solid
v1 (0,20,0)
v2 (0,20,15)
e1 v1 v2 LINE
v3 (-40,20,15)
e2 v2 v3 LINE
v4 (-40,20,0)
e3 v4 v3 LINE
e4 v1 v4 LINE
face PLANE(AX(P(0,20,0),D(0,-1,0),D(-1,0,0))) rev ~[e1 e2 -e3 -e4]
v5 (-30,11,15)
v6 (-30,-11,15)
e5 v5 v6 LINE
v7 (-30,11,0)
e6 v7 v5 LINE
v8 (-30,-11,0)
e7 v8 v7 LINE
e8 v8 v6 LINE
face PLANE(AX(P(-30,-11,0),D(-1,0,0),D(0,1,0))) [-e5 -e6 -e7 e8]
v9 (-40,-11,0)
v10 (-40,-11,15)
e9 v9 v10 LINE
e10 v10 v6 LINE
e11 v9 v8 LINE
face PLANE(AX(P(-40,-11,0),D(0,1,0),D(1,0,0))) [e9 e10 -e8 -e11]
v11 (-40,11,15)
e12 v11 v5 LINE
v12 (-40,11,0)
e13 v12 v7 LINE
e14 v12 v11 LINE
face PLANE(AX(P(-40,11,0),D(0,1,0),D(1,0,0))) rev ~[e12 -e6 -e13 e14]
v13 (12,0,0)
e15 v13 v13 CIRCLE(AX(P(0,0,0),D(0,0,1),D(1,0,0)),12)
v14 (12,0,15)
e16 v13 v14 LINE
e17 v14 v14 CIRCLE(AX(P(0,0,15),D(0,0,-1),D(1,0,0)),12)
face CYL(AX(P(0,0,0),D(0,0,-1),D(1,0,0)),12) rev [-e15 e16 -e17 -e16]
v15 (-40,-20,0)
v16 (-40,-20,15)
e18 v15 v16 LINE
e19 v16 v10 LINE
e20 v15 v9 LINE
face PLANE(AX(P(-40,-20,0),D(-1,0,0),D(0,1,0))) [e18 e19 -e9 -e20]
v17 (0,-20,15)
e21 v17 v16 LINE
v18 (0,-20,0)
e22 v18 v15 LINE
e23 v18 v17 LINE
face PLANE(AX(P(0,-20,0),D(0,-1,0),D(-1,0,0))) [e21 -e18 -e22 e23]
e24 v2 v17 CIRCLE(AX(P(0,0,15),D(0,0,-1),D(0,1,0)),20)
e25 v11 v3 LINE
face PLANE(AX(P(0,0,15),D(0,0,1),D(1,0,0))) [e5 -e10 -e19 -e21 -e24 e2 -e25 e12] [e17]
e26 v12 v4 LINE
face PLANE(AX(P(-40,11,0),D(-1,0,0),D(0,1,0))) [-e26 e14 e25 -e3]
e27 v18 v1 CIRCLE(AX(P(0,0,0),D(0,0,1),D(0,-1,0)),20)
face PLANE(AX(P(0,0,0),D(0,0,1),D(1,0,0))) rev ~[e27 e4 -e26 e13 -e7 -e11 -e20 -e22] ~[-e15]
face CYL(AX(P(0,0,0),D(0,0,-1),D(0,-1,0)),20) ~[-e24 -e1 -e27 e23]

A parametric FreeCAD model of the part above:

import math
import FreeCAD as App
import Part
import Sketcher
Q = App.Units.Quantity

doc = App.newDocument("Part")
body = doc.addObject("PartDesign::Body", "Body")

# Sketch on XY plane
sketch1 = body.newObject("Sketcher::SketchObject", "Sketch")
sketch1.AttachmentSupport = (doc.getObject("XY_Plane"), [""])
sketch1.MapMode = "FlatFace"
sketch1.addGeometry(Part.ArcOfCircle(Part.Circle(App.Vector(0, 0, 0), App.Vector(0, 0, 1), 20), math.radians(-90), math.radians(90)), False)
sketch1.addGeometry(Part.LineSegment(App.Vector(0, 20, 0), App.Vector(-40, 20, 0)), False)
sketch1.addGeometry(Part.LineSegment(App.Vector(-40, 20, 0), App.Vector(-40, 11, 0)), False)
sketch1.addGeometry(Part.LineSegment(App.Vector(-40, 11, 0), App.Vector(-30, 11, 0)), False)
sketch1.addGeometry(Part.LineSegment(App.Vector(-30, 11, 0), App.Vector(-30, -11, 0)), False)
sketch1.addGeometry(Part.LineSegment(App.Vector(-30, -11, 0), App.Vector(-40, -11, 0)), False)
sketch1.addGeometry(Part.LineSegment(App.Vector(-40, -11, 0), App.Vector(-40, -20, 0)), False)
sketch1.addGeometry(Part.LineSegment(App.Vector(-40, -20, 0), App.Vector(0, -20, 0)), False)
sketch1.addGeometry(Part.Circle(App.Vector(0, 0, 0), App.Vector(0, 0, 1), 12), False)
sketch1.addConstraint(Sketcher.Constraint("Tangent", 0, 2, 1, 1))
sketch1.addConstraint(Sketcher.Constraint("Coincident", 1, 2, 2, 1))
sketch1.addConstraint(Sketcher.Constraint("Coincident", 2, 2, 3, 1))
sketch1.addConstraint(Sketcher.Constraint("Coincident", 3, 2, 4, 1))
sketch1.addConstraint(Sketcher.Constraint("Coincident", 4, 2, 5, 1))
sketch1.addConstraint(Sketcher.Constraint("Coincident", 5, 2, 6, 1))
sketch1.addConstraint(Sketcher.Constraint("Coincident", 6, 2, 7, 1))
sketch1.addConstraint(Sketcher.Constraint("Tangent", 7, 2, 0, 1))
sketch1.addConstraint(Sketcher.Constraint("Horizontal", 1))
sketch1.addConstraint(Sketcher.Constraint("Vertical", 2))
sketch1.addConstraint(Sketcher.Constraint("Horizontal", 3))
sketch1.addConstraint(Sketcher.Constraint("Vertical", 4))
sketch1.addConstraint(Sketcher.Constraint("Horizontal", 5))
sketch1.addConstraint(Sketcher.Constraint("Vertical", 6))
sketch1.addConstraint(Sketcher.Constraint("Horizontal", 7))
sketch1.addConstraint(Sketcher.Constraint("Coincident", 0, 3, -1, 1))
sketch1.addConstraint(Sketcher.Constraint("Coincident", 8, 3, -1, 1))
sketch1.addConstraint(Sketcher.Constraint("Symmetric", 2, 2, 5, 2, -1))
sketch1.addConstraint(Sketcher.Constraint("Diameter", 8, Q("24 mm")))
sketch1.addConstraint(Sketcher.Constraint("Radius", 0, Q("20 mm")))
sketch1.addConstraint(Sketcher.Constraint("DistanceX", 1, 2, 1, 1, Q("40 mm")))
sketch1.addConstraint(Sketcher.Constraint("DistanceX", 3, 1, 3, 2, Q("10 mm")))
sketch1.addConstraint(Sketcher.Constraint("DistanceY", 4, 2, 4, 1, Q("22 mm")))
pad1 = body.newObject("PartDesign::Pad", "Pad")
pad1.Profile = sketch1
pad1.Length = 15

doc.recompute()
